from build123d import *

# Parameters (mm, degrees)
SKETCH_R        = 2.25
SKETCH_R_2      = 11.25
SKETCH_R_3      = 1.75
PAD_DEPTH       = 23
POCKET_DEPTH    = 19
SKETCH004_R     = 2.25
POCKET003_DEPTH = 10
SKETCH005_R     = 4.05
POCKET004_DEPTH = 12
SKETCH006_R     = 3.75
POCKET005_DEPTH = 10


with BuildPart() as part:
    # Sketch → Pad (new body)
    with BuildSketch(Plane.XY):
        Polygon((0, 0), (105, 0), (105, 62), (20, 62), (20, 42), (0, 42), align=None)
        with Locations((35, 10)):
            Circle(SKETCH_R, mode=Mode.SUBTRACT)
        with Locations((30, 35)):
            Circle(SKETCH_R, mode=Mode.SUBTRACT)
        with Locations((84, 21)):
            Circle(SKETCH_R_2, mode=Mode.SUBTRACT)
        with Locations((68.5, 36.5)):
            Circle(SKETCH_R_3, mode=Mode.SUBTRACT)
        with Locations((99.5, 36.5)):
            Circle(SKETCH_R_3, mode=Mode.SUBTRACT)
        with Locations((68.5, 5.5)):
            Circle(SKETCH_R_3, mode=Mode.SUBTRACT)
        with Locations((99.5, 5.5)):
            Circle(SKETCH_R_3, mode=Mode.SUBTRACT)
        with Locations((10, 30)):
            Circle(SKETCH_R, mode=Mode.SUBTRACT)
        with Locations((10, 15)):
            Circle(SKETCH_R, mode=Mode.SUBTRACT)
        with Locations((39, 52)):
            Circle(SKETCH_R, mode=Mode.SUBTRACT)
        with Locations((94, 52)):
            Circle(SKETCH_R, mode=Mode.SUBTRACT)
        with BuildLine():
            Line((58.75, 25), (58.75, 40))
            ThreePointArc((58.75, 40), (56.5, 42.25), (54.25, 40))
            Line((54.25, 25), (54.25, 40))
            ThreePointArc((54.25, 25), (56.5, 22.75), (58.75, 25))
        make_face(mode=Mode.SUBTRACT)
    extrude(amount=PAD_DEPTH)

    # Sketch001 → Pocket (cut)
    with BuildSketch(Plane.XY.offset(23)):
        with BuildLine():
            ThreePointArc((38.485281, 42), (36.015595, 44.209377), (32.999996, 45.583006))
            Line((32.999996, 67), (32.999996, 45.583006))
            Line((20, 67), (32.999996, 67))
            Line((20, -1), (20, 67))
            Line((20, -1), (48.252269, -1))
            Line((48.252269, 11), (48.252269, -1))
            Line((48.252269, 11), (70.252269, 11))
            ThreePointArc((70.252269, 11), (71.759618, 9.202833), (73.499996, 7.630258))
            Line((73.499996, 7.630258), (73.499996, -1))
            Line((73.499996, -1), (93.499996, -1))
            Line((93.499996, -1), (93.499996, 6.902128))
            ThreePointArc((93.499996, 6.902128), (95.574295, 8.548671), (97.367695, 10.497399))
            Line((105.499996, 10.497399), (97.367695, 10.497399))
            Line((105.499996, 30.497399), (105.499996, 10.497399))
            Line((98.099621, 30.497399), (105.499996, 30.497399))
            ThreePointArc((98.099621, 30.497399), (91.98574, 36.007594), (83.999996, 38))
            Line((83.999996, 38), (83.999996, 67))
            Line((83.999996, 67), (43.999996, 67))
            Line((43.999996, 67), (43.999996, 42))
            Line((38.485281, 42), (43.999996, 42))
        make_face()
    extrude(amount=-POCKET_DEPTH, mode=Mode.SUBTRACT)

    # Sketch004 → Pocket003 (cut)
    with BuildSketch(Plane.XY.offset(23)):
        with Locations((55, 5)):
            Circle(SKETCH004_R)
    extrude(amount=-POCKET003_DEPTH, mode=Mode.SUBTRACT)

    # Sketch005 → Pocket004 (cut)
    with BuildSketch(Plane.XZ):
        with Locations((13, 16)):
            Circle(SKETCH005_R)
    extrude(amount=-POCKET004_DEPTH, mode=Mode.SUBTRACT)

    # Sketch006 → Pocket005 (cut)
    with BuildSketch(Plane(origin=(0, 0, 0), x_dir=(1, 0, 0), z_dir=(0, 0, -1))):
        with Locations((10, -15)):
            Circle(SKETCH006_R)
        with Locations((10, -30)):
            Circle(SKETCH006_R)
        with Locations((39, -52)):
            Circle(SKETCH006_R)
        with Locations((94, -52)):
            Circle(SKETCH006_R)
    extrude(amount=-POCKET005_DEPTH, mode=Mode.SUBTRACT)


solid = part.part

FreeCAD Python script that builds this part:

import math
import FreeCAD as App
import Part
import Sketcher


def add_polygon(sketch, points):
    """Adds a closed chain of lines whose ends are joined by coincident constraints."""
    first, n = sketch.GeometryCount, len(points)
    for a, b in zip(points, points[1:] + points[:1]):
        sketch.addGeometry(Part.LineSegment(App.Vector(*a, 0), App.Vector(*b, 0)), False)
    for i in range(n):
        sketch.addConstraint(Sketcher.Constraint("Coincident", first + i, 2, first + (i + 1) % n, 1))

doc = App.newDocument("Part")
params = doc.addObject("Spreadsheet::Sheet", "Params")
for row, (alias, value) in enumerate([
    ("sketch1_diameter", "4.5 mm"),
    ("sketch1_diameter2", "3.5 mm"),
    ("sketch1_diameter3", "22.5 mm"),
    ("sketch1_width", "105 mm"),
    ("sketch1_width2", "85 mm"),
    ("pad1_length", "23 mm"),
    ("sketch2_width", "22 mm"),
    ("sketch2_width2", "20 mm"),
    ("sketch2_width3", "40 mm"),
    ("sketch2_height", "68 mm"),
    ("sketch2_height2", "12 mm"),
    ("pocket1_length", "19 mm"),
    ("sketch3_diameter", "4.5 mm"),
    ("pocket2_length", "10 mm"),
    ("sketch4_diameter", "8.1 mm"),
    ("pocket3_length", "12 mm"),
    ("sketch5_diameter", "7.5 mm"),
    ("pocket4_length", "10 mm"),
], start=1):
    params.set(f"A{row}", alias)
    params.set(f"B{row}", "=" + value)
    params.setAlias(f"B{row}", alias)

body = doc.addObject("PartDesign::Body", "Body")

# Sketch on XY plane
sketch1 = doc.addObject("Sketcher::SketchObject", "Sketch")
body.addObject(sketch1)
sketch1.AttachmentSupport = (doc.XY_Plane, [""])
sketch1.MapMode = "FlatFace"
add_polygon(sketch1, [(0, 0), (105, 0), (105, 62), (20, 62), (20, 42), (0, 42)])  # lines 0-5
sketch1.addGeometry(Part.Circle(App.Vector(10, 15, 0), App.Vector(0, 0, 1), 2.25), False)  # 6
sketch1.addGeometry(Part.Circle(App.Vector(35, 10, 0), App.Vector(0, 0, 1), 2.25), False)  # 7
sketch1.addGeometry(Part.Circle(App.Vector(68.5, 5.5, 0), App.Vector(0, 0, 1), 1.75), False)  # 8
sketch1.addGeometry(Part.Circle(App.Vector(99.5, 5.5, 0), App.Vector(0, 0, 1), 1.75), False)  # 9
sketch1.addGeometry(Part.Circle(App.Vector(84, 21, 0), App.Vector(0, 0, 1), 11.25), False)  # 10
sketch1.addGeometry(Part.Circle(App.Vector(10, 30, 0), App.Vector(0, 0, 1), 2.25), False)  # 11
sketch1.addGeometry(Part.Circle(App.Vector(30, 35, 0), App.Vector(0, 0, 1), 2.25), False)  # 12
sketch1.addGeometry(Part.Circle(App.Vector(39, 52, 0), App.Vector(0, 0, 1), 2.25), False)  # 13
sketch1.addGeometry(Part.LineSegment(App.Vector(58.75, 40, 0), App.Vector(58.75, 25, 0)), False)  # 14
sketch1.addGeometry(Part.ArcOfCircle(Part.Circle(App.Vector(56.5, 25, 0), App.Vector(0, 0, 1), 2.25), math.radians(180), math.radians(360)), False)  # 15
sketch1.addGeometry(Part.LineSegment(App.Vector(54.25, 25, 0), App.Vector(54.25, 40, 0)), False)  # 16
sketch1.addGeometry(Part.ArcOfCircle(Part.Circle(App.Vector(56.5, 40, 0), App.Vector(0, 0, 1), 2.25), math.radians(0), math.radians(180)), False)  # 17
sketch1.addGeometry(Part.Circle(App.Vector(68.5, 36.5, 0), App.Vector(0, 0, 1), 1.75), False)  # 18
sketch1.addGeometry(Part.Circle(App.Vector(99.5, 36.5, 0), App.Vector(0, 0, 1), 1.75), False)  # 19
sketch1.addGeometry(Part.Circle(App.Vector(94, 52, 0), App.Vector(0, 0, 1), 2.25), False)  # 20
sketch1.addConstraint(Sketcher.Constraint("Tangent", 14, 2, 15, 2))
sketch1.addConstraint(Sketcher.Constraint("Tangent", 15, 1, 16, 1))
sketch1.addConstraint(Sketcher.Constraint("Tangent", 16, 2, 17, 2))
sketch1.addConstraint(Sketcher.Constraint("Tangent", 17, 1, 14, 1))
sketch1.addConstraint(Sketcher.Constraint("Horizontal", 0))
sketch1.addConstraint(Sketcher.Constraint("Vertical", 1))
sketch1.addConstraint(Sketcher.Constraint("Horizontal", 2))
sketch1.addConstraint(Sketcher.Constraint("Vertical", 3))
sketch1.addConstraint(Sketcher.Constraint("Horizontal", 4))
sketch1.addConstraint(Sketcher.Constraint("Vertical", 5))
sketch1.addConstraint(Sketcher.Constraint("Vertical", 14))
sketch1.addConstraint(Sketcher.Constraint("Vertical", 16))
sketch1.addConstraint(Sketcher.Constraint("Coincident", 5, 2, -1, 1))
sketch1.addConstraint(Sketcher.Constraint("Equal", 6, 7))
sketch1.addConstraint(Sketcher.Constraint("Equal", 8, 9))
sketch1.addConstraint(Sketcher.Constraint("Equal", 7, 11))
sketch1.addConstraint(Sketcher.Constraint("Equal", 11, 12))
sketch1.addConstraint(Sketcher.Constraint("Equal", 12, 13))
sketch1.addConstraint(Sketcher.Constraint("Equal", 13, 15))
sketch1.addConstraint(Sketcher.Constraint("Equal", 9, 18))
sketch1.addConstraint(Sketcher.Constraint("Equal", 18, 19))
sketch1.addConstraint(Sketcher.Constraint("Equal", 17, 20))
sketch1.addConstraint(Sketcher.Constraint("Horizontal", 8, 3, 9, 3))
sketch1.addConstraint(Sketcher.Constraint("Horizontal", 18, 3, 19, 3))
sketch1.addConstraint(Sketcher.Constraint("Horizontal", 13, 3, 20, 3))
sketch1.addConstraint(Sketcher.Constraint("Vertical", 6, 3, 11, 3))
sketch1.addConstraint(Sketcher.Constraint("Vertical", 8, 3, 18, 3))
sketch1.addConstraint(Sketcher.Constraint("Vertical", 9, 3, 19, 3))
sketch1.addConstraint(Sketcher.Constraint("Equal", 4, 3))
sketch1.addConstraint(Sketcher.Constraint("Diameter", 6, 4.5))
sketch1.addConstraint(Sketcher.Constraint("Diameter", 8, 3.5))
sketch1.addConstraint(Sketcher.Constraint("Diameter", 10, 22.5))
sketch1.addConstraint(Sketcher.Constraint("DistanceX", 0, 1, 0, 2, 105.0))
sketch1.addConstraint(Sketcher.Constraint("DistanceX", 2, 2, 2, 1, 85.0))
sketch1.addConstraint(Sketcher.Constraint("DistanceY", 1, 1, 1, 2, 62.0))
sketch1.addConstraint(Sketcher.Constraint("DistanceY", 14, 2, 14, 1, 15.0))
sketch1.addConstraint(Sketcher.Constraint("DistanceX", -1, 1, 6, 3, 10.0))
sketch1.addConstraint(Sketcher.Constraint("DistanceY", -1, 1, 6, 3, 15.0))
sketch1.addConstraint(Sketcher.Constraint("DistanceX", -1, 1, 7, 3, 35.0))
sketch1.addConstraint(Sketcher.Constraint("DistanceY", -1, 1, 7, 3, 10.0))
sketch1.addConstraint(Sketcher.Constraint("DistanceX", -1, 1, 10, 3, 84.0))
sketch1.addConstraint(Sketcher.Constraint("DistanceY", -1, 1, 10, 3, 21.0))
sketch1.addConstraint(Sketcher.Constraint("DistanceY", -1, 1, 11, 3, 30.0))
sketch1.addConstraint(Sketcher.Constraint("DistanceX", -1, 1, 12, 3, 30.0))
sketch1.addConstraint(Sketcher.Constraint("DistanceY", -1, 1, 12, 3, 35.0))
sketch1.addConstraint(Sketcher.Constraint("DistanceX", -1, 1, 13, 3, 39.0))
sketch1.addConstraint(Sketcher.Constraint("DistanceY", -1, 1, 13, 3, 52.0))
sketch1.addConstraint(Sketcher.Constraint("DistanceY", -1, 1, 15, 3, 25.0))
sketch1.addConstraint(Sketcher.Constraint("DistanceX", -1, 1, 20, 3, 94.0))
sketch1.addConstraint(Sketcher.Constraint("DistanceX", 8, 3, 9, 3, 31.0))
sketch1.addConstraint(Sketcher.Constraint("DistanceX", 15, 3, 8, 3, 12.0))
sketch1.addConstraint(Sketcher.Constraint("DistanceY", 8, 3, 18, 3, 31.0))
sketch1.addConstraint(Sketcher.Constraint("DistanceX", -1, 1, 8, 3, 68.5))
sketch1.addConstraint(Sketcher.Constraint("DistanceY", -1, 1, 8, 3, 5.5))
sketch1.setExpression("Constraints[35]", "Params.sketch1_diameter")
sketch1.setExpression("Constraints[36]", "Params.sketch1_diameter2")
sketch1.setExpression("Constraints[37]", "Params.sketch1_diameter3")
sketch1.setExpression("Constraints[38]", "Params.sketch1_width")
sketch1.setExpression("Constraints[39]", "Params.sketch1_width2")
pad1 = doc.addObject("PartDesign::Pad", "Pad")
body.addObject(pad1)
pad1.Profile = sketch1
pad1.setExpression("Length", "Params.pad1_length")

# Sketch on XY plane
sketch2 = doc.addObject("Sketcher::SketchObject", "Sketch001")
body.addObject(sketch2)
sketch2.AttachmentSupport = (doc.XY_Plane, [""])
sketch2.MapMode = "FlatFace"
sketch2.AttachmentOffset = App.Placement(App.Vector(0, 0, 23), App.Rotation())
sketch2.addGeometry(Part.ArcOfCircle(Part.Circle(App.Vector(30.000008, 35.000013, 0), App.Vector(0, 0, 1), 10.999985), math.radians(39.521175), math.radians(74.173425)), False)
sketch2.addGeometry(Part.LineSegment(App.Vector(32.999996, 45.583006, 0), App.Vector(32.999996, 67, 0)), False)
sketch2.addGeometry(Part.LineSegment(App.Vector(32.999996, 67, 0), App.Vector(20, 67, 0)), False)
sketch2.addGeometry(Part.LineSegment(App.Vector(20, 67, 0), App.Vector(20, -1, 0)), False)
sketch2.addGeometry(Part.LineSegment(App.Vector(20, -1, 0), App.Vector(48.252269, -1, 0)), False)
sketch2.addGeometry(Part.LineSegment(App.Vector(48.252269, -1, 0), App.Vector(48.252269, 11, 0)), False)
sketch2.addGeometry(Part.LineSegment(App.Vector(48.252269, 11, 0), App.Vector(70.252269, 11, 0)), False)
sketch2.addGeometry(Part.ArcOfCircle(Part.Circle(App.Vector(83.999989, 20.999992, 0), App.Vector(0, 0, 1), 16.99999), math.radians(-143.968127), math.radians(-128.144509)), False)
sketch2.addGeometry(Part.LineSegment(App.Vector(73.499996, 7.630258, 0), App.Vector(73.499996, -1, 0)), False)
sketch2.addGeometry(Part.LineSegment(App.Vector(73.499996, -1, 0), App.Vector(93.499996, -1, 0)), False)
sketch2.addGeometry(Part.LineSegment(App.Vector(93.499996, -1, 0), App.Vector(93.499996, 6.902128, 0)), False)
sketch2.addGeometry(Part.ArcOfCircle(Part.Circle(App.Vector(83.999983, 21.000016, 0), App.Vector(0, 0, 1), 17.00002), math.radians(-56.025516), math.radians(-38.155674)), False)
sketch2.addGeometry(Part.LineSegment(App.Vector(97.367695, 10.497399, 0), App.Vector(105.499996, 10.497399, 0)), False)
sketch2.addGeometry(Part.LineSegment(App.Vector(105.499996, 10.497399, 0), App.Vector(105.499996, 30.497399, 0)), False)
sketch2.addGeometry(Part.LineSegment(App.Vector(105.499996, 30.497399, 0), App.Vector(98.099621, 30.497399, 0)), False)
sketch2.addGeometry(Part.ArcOfCircle(Part.Circle(App.Vector(83.999994, 20.999995, 0), App.Vector(0, 0, 1), 17.000005), math.radians(33.963915), math.radians(89.999993)), False)
sketch2.addGeometry(Part.LineSegment(App.Vector(83.999996, 38, 0), App.Vector(83.999996, 67, 0)), False)
sketch2.addGeometry(Part.LineSegment(App.Vector(83.999996, 67, 0), App.Vector(43.999996, 67, 0)), False)
sketch2.addGeometry(Part.LineSegment(App.Vector(43.999996, 67, 0), App.Vector(43.999996, 42, 0)), False)
sketch2.addGeometry(Part.LineSegment(App.Vector(43.999996, 42, 0), App.Vector(38.485281, 42, 0)), False)
sketch2.addConstraint(Sketcher.Constraint("Coincident", 0, 2, 1, 1))
sketch2.addConstraint(Sketcher.Constraint("Coincident", 1, 2, 2, 1))
sketch2.addConstraint(Sketcher.Constraint("Coincident", 2, 2, 3, 1))
sketch2.addConstraint(Sketcher.Constraint("Coincident", 3, 2, 4, 1))
sketch2.addConstraint(Sketcher.Constraint("Coincident", 4, 2, 5, 1))
sketch2.addConstraint(Sketcher.Constraint("Coincident", 5, 2, 6, 1))
sketch2.addConstraint(Sketcher.Constraint("Coincident", 6, 2, 7, 1))
sketch2.addConstraint(Sketcher.Constraint("Coincident", 7, 2, 8, 1))
sketch2.addConstraint(Sketcher.Constraint("Coincident", 8, 2, 9, 1))
sketch2.addConstraint(Sketcher.Constraint("Coincident", 9, 2, 10, 1))
sketch2.addConstraint(Sketcher.Constraint("Coincident", 10, 2, 11, 1))
sketch2.addConstraint(Sketcher.Constraint("Coincident", 11, 2, 12, 1))
sketch2.addConstraint(Sketcher.Constraint("Coincident", 12, 2, 13, 1))
sketch2.addConstraint(Sketcher.Constraint("Coincident", 13, 2, 14, 1))
sketch2.addConstraint(Sketcher.Constraint("Coincident", 14, 2, 15, 1))
sketch2.addConstraint(Sketcher.Constraint("Coincident", 15, 2, 16, 1))
sketch2.addConstraint(Sketcher.Constraint("Coincident", 16, 2, 17, 1))
sketch2.addConstraint(Sketcher.Constraint("Coincident", 17, 2, 18, 1))
sketch2.addConstraint(Sketcher.Constraint("Coincident", 18, 2, 19, 1))
sketch2.addConstraint(Sketcher.Constraint("Coincident", 19, 2, 0, 1))
sketch2.addConstraint(Sketcher.Constraint("Vertical", 1))
sketch2.addConstraint(Sketcher.Constraint("Horizontal", 2))
sketch2.addConstraint(Sketcher.Constraint("Vertical", 3))
sketch2.addConstraint(Sketcher.Constraint("Horizontal", 4))
sketch2.addConstraint(Sketcher.Constraint("Vertical", 5))
sketch2.addConstraint(Sketcher.Constraint("Horizontal", 6))
sketch2.addConstraint(Sketcher.Constraint("Vertical", 8))
sketch2.addConstraint(Sketcher.Constraint("Horizontal", 9))
sketch2.addConstraint(Sketcher.Constraint("Vertical", 10))
sketch2.addConstraint(Sketcher.Constraint("Horizontal", 12))
sketch2.addConstraint(Sketcher.Constraint("Vertical", 13))
sketch2.addConstraint(Sketcher.Constraint("Horizontal", 14))
sketch2.addConstraint(Sketcher.Constraint("Vertical", 16))
sketch2.addConstraint(Sketcher.Constraint("Horizontal", 17))
sketch2.addConstraint(Sketcher.Constraint("Vertical", 18))
sketch2.addConstraint(Sketcher.Constraint("Horizontal", 19))
sketch2.addConstraint(Sketcher.Constraint("Coincident", 15, 3, 7, 3))
sketch2.addConstraint(Sketcher.Constraint("Horizontal", 4, 2, 8, 2))
sketch2.addConstraint(Sketcher.Constraint("Horizontal", 2, 2, 16, 2))
sketch2.addConstraint(Sketcher.Constraint("Equal", 9, 13))
sketch2.addConstraint(Sketcher.Constraint("DistanceX", 6, 1, 6, 2, 22.0))
sketch2.addConstraint(Sketcher.Constraint("DistanceX", 9, 1, 9, 2, 20.0))
sketch2.addConstraint(Sketcher.Constraint("DistanceX", 17, 2, 17, 1, 40.0))
sketch2.addConstraint(Sketcher.Constraint("DistanceY", 3, 2, 3, 1, 68.0))
sketch2.addConstraint(Sketcher.Constraint("DistanceY", 5, 1, 5, 2, 12.0))
sketch2.addConstraint(Sketcher.Constraint("DistanceY", 16, 1, 16, 2, 29.0))
sketch2.addConstraint(Sketcher.Constraint("DistanceY", 18, 2, 18, 1, 25.0))
sketch2.addConstraint(Sketcher.Constraint("DistanceY", -1, 1, 1, 2, 67.0))
sketch2.addConstraint(Sketcher.Constraint("DistanceX", -1, 1, 2, 2, 20.0))
sketch2.addConstraint(Sketcher.Constraint("DistanceX", 10, 2, 12, 2, 12.0))
sketch2.addConstraint(Sketcher.Constraint("DistanceX", 1, 2, 17, 2, 11.0))
sketch2.addConstraint(Sketcher.Constraint("DistanceX", 15, 2, 13, 2, 21.5))
sketch2.addConstraint(Sketcher.Constraint("Radius", 7, 16.99999))
sketch2.addConstraint(Sketcher.Constraint("Radius", 11, 17.00002))
sketch2.addConstraint(Sketcher.Constraint("DistanceX", 12, 1, 12, 2, 8.132301))
sketch2.addConstraint(Sketcher.Constraint("Radius", 0, 10.999985))
sketch2.addConstraint(Sketcher.Constraint("Radius", 15, 17.000005))
sketch2.addConstraint(Sketcher.Constraint("DistanceX", 4, 1, 4, 2, 28.252269))
sketch2.addConstraint(Sketcher.Constraint("DistanceY", 8, 2, 8, 1, 8.630258))
sketch2.addConstraint(Sketcher.Constraint("DistanceY", 10, 1, 10, 2, 7.902128))
sketch2.addConstraint(Sketcher.Constraint("DistanceY", -1, 1, 11, 2, 10.497399))
sketch2.addConstraint(Sketcher.Constraint("DistanceX", 19, 2, 19, 1, 5.514715))
sketch2.addConstraint(Sketcher.Constraint("DistanceY", 1, 1, 1, 2, 21.416994))
sketch2.setExpression("Constraints[40]", "Params.sketch2_width")
sketch2.setExpression("Constraints[41]", "Params.sketch2_width2")
sketch2.setExpression("Constraints[42]", "Params.sketch2_width3")
sketch2.setExpression("Constraints[43]", "Params.sketch2_height")
sketch2.setExpression("Constraints[44]", "Params.sketch2_height2")
pocket1 = doc.addObject("PartDesign::Pocket", "Pocket")
body.addObject(pocket1)
pocket1.Profile = sketch2
pocket1.setExpression("Length", "Params.pocket1_length")

# Sketch on XY plane
sketch3 = doc.addObject("Sketcher::SketchObject", "Sketch002")
body.addObject(sketch3)
sketch3.AttachmentSupport = (doc.XY_Plane, [""])
sketch3.MapMode = "FlatFace"
sketch3.AttachmentOffset = App.Placement(App.Vector(0, 0, 23), App.Rotation())
sketch3.addGeometry(Part.Circle(App.Vector(55, 5, 0), App.Vector(0, 0, 1), 2.25), False)
sketch3.addConstraint(Sketcher.Constraint("Diameter", 0, 4.5))
sketch3.addConstraint(Sketcher.Constraint("DistanceX", -1, 1, 0, 3, 55.0))
sketch3.addConstraint(Sketcher.Constraint("DistanceY", -1, 1, 0, 3, 5.0))
sketch3.setExpression("Constraints[0]", "Params.sketch3_diameter")
pocket2 = doc.addObject("PartDesign::Pocket", "Pocket001")
body.addObject(pocket2)
pocket2.Profile = sketch3
pocket2.setExpression("Length", "Params.pocket2_length")

# Sketch on XZ plane
sketch4 = doc.addObject("Sketcher::SketchObject", "Sketch003")
body.addObject(sketch4)
sketch4.AttachmentSupport = (doc.XZ_Plane, [""])
sketch4.MapMode = "FlatFace"
sketch4.addGeometry(Part.Circle(App.Vector(13, 16, 0), App.Vector(0, 0, 1), 4.05), False)
sketch4.addConstraint(Sketcher.Constraint("Diameter", 0, 8.1))
sketch4.addConstraint(Sketcher.Constraint("DistanceX", -1, 1, 0, 3, 13.0))
sketch4.addConstraint(Sketcher.Constraint("DistanceY", -1, 1, 0, 3, 16.0))
sketch4.setExpression("Constraints[0]", "Params.sketch4_diameter")
pocket3 = doc.addObject("PartDesign::Pocket", "Pocket002")
body.addObject(pocket3)
pocket3.Profile = sketch4
pocket3.setExpression("Length", "Params.pocket3_length")

# Sketch on XY plane
sketch5 = doc.addObject("Sketcher::SketchObject", "Sketch004")
body.addObject(sketch5)
sketch5.AttachmentSupport = (doc.XY_Plane, [""])
sketch5.MapMode = "FlatFace"
sketch5.addGeometry(Part.Circle(App.Vector(10, 15, 0), App.Vector(0, 0, 1), 3.75), False)
sketch5.addGeometry(Part.Circle(App.Vector(10, 30, 0), App.Vector(0, 0, 1), 3.75), False)
sketch5.addGeometry(Part.Circle(App.Vector(39, 52, 0), App.Vector(0, 0, 1), 3.75), False)
sketch5.addGeometry(Part.Circle(App.Vector(94, 52, 0), App.Vector(0, 0, 1), 3.75), False)
sketch5.addConstraint(Sketcher.Constraint("Equal", 0, 1))
sketch5.addConstraint(Sketcher.Constraint("Equal", 1, 2))
sketch5.addConstraint(Sketcher.Constraint("Equal", 2, 3))
sketch5.addConstraint(Sketcher.Constraint("Horizontal", 2, 3, 3, 3))
sketch5.addConstraint(Sketcher.Constraint("Vertical", 0, 3, 1, 3))
sketch5.addConstraint(Sketcher.Constraint("Diameter", 0, 7.5))
sketch5.addConstraint(Sketcher.Constraint("DistanceX", -1, 1, 0, 3, 10.0))
sketch5.addConstraint(Sketcher.Constraint("DistanceY", -1, 1, 0, 3, 15.0))
sketch5.addConstraint(Sketcher.Constraint("DistanceY", -1, 1, 1, 3, 30.0))
sketch5.addConstraint(Sketcher.Constraint("DistanceX", -1, 1, 2, 3, 39.0))
sketch5.addConstraint(Sketcher.Constraint("DistanceY", -1, 1, 2, 3, 52.0))
sketch5.addConstraint(Sketcher.Constraint("DistanceX", -1, 1, 3, 3, 94.0))
sketch5.setExpression("Constraints[5]", "Params.sketch5_diameter")
pocket4 = doc.addObject("PartDesign::Pocket", "Pocket003")
body.addObject(pocket4)
pocket4.Profile = sketch5
pocket4.setExpression("Length", "Params.pocket4_length")
pocket4.Reversed = True

doc.recompute()
